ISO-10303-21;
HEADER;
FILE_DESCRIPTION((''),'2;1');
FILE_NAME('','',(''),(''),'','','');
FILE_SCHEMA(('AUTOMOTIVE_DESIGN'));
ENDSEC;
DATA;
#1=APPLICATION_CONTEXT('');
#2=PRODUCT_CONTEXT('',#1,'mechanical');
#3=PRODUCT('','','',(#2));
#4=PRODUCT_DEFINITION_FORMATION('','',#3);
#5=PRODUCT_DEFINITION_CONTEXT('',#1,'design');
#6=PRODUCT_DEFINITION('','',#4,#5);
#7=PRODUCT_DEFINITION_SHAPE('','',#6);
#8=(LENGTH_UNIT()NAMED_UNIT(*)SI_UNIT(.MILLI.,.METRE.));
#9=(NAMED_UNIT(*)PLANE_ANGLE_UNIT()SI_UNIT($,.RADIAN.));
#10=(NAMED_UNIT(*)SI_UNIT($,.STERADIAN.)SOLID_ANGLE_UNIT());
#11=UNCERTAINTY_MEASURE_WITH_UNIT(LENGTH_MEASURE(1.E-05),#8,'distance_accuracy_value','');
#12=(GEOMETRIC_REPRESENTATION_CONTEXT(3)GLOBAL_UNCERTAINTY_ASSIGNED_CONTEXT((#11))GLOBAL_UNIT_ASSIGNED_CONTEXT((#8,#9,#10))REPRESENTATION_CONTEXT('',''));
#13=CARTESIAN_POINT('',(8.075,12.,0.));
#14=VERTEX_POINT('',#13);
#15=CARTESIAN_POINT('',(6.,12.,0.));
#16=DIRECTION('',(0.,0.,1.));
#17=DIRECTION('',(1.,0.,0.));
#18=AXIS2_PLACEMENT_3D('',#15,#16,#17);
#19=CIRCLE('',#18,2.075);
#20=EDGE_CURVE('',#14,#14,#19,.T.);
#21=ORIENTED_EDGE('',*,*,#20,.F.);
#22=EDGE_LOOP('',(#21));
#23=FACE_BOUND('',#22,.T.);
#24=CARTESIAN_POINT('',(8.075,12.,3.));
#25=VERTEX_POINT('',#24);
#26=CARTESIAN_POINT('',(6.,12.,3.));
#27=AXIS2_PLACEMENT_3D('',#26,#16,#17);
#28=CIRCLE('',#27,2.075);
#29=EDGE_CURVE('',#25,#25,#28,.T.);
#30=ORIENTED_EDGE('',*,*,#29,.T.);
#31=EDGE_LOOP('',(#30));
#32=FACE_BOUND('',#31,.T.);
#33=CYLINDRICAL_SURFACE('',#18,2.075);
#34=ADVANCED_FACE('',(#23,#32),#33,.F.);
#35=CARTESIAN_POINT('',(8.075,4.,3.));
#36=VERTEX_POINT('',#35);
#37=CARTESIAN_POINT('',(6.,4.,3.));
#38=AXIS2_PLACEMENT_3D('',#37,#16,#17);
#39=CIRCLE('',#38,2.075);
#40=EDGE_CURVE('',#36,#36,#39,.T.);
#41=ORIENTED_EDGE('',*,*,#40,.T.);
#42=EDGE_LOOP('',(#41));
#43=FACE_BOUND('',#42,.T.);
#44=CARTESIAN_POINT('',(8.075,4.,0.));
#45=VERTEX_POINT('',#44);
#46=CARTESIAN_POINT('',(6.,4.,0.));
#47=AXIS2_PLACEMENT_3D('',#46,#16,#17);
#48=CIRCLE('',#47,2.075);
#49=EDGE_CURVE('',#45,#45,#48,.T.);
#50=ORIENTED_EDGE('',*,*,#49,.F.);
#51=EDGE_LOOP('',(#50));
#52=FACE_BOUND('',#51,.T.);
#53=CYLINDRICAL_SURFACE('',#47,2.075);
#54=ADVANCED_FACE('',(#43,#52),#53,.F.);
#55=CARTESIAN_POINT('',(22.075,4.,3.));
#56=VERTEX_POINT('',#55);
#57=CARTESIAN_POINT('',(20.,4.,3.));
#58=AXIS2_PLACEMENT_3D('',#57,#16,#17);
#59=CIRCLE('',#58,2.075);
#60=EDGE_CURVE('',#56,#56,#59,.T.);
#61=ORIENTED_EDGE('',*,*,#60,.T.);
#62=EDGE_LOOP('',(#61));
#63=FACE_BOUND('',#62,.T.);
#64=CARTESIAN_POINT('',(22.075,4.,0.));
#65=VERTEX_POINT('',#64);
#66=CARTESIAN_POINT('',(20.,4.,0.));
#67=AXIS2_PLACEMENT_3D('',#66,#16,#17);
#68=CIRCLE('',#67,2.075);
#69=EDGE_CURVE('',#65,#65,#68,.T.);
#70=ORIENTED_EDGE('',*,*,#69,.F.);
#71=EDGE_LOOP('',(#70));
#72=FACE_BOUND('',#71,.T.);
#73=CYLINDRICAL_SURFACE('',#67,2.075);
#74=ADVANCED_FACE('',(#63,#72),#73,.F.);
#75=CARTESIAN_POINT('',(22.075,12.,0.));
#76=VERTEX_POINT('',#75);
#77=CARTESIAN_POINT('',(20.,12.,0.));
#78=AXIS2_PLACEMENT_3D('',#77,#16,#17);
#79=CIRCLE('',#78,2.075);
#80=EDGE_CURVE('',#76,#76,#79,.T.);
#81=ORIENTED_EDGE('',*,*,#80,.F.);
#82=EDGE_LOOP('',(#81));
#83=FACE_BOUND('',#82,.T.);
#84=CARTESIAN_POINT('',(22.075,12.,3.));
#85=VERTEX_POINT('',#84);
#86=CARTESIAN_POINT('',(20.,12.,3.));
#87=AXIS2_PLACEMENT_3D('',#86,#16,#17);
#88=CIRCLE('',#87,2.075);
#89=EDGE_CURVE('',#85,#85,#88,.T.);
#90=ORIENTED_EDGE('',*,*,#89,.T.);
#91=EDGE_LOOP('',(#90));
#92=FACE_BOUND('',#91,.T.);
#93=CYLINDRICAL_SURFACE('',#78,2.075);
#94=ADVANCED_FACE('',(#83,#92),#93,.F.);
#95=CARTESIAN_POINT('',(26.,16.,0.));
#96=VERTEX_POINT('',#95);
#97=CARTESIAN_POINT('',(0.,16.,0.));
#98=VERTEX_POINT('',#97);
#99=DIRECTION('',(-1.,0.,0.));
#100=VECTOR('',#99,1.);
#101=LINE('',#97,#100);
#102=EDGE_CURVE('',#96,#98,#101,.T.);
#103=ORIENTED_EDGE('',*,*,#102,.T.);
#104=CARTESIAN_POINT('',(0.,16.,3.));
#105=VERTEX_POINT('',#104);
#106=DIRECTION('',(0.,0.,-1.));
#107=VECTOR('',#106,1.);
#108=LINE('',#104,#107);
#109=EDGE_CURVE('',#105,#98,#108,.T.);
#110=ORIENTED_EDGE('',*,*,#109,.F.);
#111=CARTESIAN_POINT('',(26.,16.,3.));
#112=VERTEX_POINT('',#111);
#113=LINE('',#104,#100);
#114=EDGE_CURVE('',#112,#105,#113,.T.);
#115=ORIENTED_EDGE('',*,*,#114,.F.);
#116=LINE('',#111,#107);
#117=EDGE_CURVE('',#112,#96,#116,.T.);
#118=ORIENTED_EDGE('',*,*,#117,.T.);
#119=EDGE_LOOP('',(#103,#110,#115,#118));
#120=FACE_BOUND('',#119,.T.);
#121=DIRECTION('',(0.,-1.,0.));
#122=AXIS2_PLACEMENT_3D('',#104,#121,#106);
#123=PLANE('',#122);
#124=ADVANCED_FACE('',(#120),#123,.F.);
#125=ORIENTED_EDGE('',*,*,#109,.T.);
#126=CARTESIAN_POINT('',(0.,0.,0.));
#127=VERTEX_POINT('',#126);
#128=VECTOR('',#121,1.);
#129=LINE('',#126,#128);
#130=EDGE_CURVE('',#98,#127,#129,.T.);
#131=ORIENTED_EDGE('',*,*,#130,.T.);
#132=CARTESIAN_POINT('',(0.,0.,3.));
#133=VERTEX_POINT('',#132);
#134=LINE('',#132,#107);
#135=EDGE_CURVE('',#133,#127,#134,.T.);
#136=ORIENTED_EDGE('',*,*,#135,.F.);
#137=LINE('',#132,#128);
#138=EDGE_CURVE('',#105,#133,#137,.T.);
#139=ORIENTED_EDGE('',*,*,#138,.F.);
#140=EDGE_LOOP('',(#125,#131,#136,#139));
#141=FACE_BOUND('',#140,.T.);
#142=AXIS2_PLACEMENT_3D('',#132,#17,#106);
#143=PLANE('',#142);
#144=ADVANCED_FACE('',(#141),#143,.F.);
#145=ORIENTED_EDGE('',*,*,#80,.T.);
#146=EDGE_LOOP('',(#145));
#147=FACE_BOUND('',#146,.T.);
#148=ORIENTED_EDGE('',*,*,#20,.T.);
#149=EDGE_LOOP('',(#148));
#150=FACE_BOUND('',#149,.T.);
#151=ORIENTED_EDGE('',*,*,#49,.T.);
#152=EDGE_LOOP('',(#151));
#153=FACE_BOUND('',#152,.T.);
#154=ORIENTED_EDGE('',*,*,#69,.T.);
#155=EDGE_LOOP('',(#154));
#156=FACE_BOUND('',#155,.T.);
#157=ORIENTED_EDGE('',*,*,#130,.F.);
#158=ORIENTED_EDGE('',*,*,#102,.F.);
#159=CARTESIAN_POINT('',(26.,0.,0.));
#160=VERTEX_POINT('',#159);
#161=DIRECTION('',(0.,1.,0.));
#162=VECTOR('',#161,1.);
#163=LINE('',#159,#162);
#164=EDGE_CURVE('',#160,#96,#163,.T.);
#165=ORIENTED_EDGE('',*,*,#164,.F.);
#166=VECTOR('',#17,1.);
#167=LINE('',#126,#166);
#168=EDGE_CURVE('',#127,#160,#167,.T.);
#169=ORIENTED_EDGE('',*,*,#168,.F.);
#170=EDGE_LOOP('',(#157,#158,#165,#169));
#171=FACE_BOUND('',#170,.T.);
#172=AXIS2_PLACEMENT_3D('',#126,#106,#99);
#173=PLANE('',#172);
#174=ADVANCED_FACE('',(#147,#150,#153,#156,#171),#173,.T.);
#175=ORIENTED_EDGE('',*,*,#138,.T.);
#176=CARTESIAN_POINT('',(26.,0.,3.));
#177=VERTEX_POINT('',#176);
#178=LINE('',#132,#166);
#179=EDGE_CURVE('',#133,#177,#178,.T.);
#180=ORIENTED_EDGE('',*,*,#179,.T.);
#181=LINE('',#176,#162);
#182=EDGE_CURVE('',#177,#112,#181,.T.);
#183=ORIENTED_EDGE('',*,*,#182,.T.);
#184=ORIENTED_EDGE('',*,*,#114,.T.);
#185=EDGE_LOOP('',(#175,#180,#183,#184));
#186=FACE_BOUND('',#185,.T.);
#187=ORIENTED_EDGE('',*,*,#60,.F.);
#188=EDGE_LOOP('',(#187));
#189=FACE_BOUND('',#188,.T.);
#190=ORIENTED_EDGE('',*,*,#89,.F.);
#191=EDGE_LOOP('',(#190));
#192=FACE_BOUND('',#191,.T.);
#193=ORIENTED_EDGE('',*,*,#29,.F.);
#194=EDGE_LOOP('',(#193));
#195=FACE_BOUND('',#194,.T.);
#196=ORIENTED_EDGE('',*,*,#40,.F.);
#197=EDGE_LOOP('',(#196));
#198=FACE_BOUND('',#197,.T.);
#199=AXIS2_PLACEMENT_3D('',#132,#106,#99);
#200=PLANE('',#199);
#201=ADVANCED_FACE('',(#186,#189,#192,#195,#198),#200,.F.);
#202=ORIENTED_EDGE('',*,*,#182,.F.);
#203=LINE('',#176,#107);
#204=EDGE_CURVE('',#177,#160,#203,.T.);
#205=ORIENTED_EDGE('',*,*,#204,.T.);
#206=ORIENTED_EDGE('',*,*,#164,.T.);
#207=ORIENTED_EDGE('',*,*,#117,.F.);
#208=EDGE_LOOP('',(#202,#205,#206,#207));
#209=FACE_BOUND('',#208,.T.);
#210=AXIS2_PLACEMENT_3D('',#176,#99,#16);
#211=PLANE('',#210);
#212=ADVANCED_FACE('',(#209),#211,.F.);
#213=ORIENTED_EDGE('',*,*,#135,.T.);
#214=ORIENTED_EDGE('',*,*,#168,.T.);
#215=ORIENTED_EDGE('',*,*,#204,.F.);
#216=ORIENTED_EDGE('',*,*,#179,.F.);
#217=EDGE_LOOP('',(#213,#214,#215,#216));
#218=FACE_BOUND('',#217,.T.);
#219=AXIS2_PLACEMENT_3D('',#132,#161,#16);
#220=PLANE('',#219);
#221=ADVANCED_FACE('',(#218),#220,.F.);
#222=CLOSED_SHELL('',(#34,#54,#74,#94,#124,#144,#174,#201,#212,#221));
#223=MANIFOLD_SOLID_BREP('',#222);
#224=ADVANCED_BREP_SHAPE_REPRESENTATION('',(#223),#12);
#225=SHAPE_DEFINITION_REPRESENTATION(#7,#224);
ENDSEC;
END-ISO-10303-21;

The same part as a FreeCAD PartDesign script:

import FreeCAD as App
import Part
import Sketcher

V = App.Vector
Q = App.Units.Quantity


def add_polygon(sketch, points):
    """Adds a closed chain of lines whose ends are joined by coincident constraints."""
    first, n = sketch.GeometryCount, len(points)
    for a, b in zip(points, points[1:] + points[:1]):
        sketch.addGeometry(Part.LineSegment(App.Vector(*a, 0), App.Vector(*b, 0)), False)
    for i in range(n):
        sketch.addConstraint(Sketcher.Constraint("Coincident", first + i, 2, first + (i + 1) % n, 1))

doc = App.newDocument("Part")
body = doc.addObject("PartDesign::Body", "Body")

# Sketch on XY plane
sketch1 = doc.addObject("Sketcher::SketchObject", "Sketch")
body.addObject(sketch1)
sketch1.AttachmentSupport = (doc.XY_Plane, [""])
sketch1.MapMode = "FlatFace"
add_polygon(sketch1, [(0, 16), (0, 0), (26, 0), (26, 16)])  # lines 0-3
sketch1.addConstraint(Sketcher.Constraint("Vertical", 0))
sketch1.addConstraint(Sketcher.Constraint("Horizontal", 1))
sketch1.addConstraint(Sketcher.Constraint("Vertical", 2))
sketch1.addConstraint(Sketcher.Constraint("Horizontal", 3))
sketch1.addConstraint(Sketcher.Constraint("Coincident", 0, 2, -1, 1))
sketch1.addConstraint(Sketcher.Constraint("DistanceX", 1, 1, 1, 2, Q("26 mm")))
sketch1.addConstraint(Sketcher.Constraint("DistanceY", 0, 2, 0, 1, Q("16 mm")))
pad1 = doc.addObject("PartDesign::Pad", "Pad")
body.addObject(pad1)
pad1.Profile = sketch1
pad1.Length = 3

# Sketch on XY plane
sketch2 = doc.addObject("Sketcher::SketchObject", "Sketch001")
body.addObject(sketch2)
sketch2.AttachmentSupport = (doc.XY_Plane, [""])
sketch2.MapMode = "FlatFace"
sketch2.AttachmentOffset = App.Placement(V(0, 0, 3), App.Rotation())
sketch2.addGeometry(Part.Circle(V(6, 12, 0), V(0, 0, 1), 2.075), False)
sketch2.addGeometry(Part.Circle(V(20, 12, 0), V(0, 0, 1), 2.075), False)
sketch2.addGeometry(Part.Circle(V(6, 4, 0), V(0, 0, 1), 2.075), False)
sketch2.addGeometry(Part.Circle(V(20, 4, 0), V(0, 0, 1), 2.075), False)
sketch2.addConstraint(Sketcher.Constraint("Equal", 0, 1))
sketch2.addConstraint(Sketcher.Constraint("Equal", 1, 2))
sketch2.addConstraint(Sketcher.Constraint("Equal", 2, 3))
sketch2.addConstraint(Sketcher.Constraint("Horizontal", 0, 3, 1, 3))
sketch2.addConstraint(Sketcher.Constraint("Horizontal", 2, 3, 3, 3))
sketch2.addConstraint(Sketcher.Constraint("Vertical", 0, 3, 2, 3))
sketch2.addConstraint(Sketcher.Constraint("Vertical", 1, 3, 3, 3))
sketch2.addConstraint(Sketcher.Constraint("Diameter", 0, Q("4.15 mm")))
sketch2.addConstraint(Sketcher.Constraint("DistanceX", -1, 1, 0, 3, Q("6 mm")))
sketch2.addConstraint(Sketcher.Constraint("DistanceY", -1, 1, 0, 3, Q("12 mm")))
sketch2.addConstraint(Sketcher.Constraint("DistanceX", -1, 1, 1, 3, Q("20 mm")))
sketch2.addConstraint(Sketcher.Constraint("DistanceY", -1, 1, 2, 3, Q("4 mm")))
pocket1 = doc.addObject("PartDesign::Pocket", "Pocket")
body.addObject(pocket1)
pocket1.Profile = sketch2
pocket1.Length = 3

doc.recompute()
